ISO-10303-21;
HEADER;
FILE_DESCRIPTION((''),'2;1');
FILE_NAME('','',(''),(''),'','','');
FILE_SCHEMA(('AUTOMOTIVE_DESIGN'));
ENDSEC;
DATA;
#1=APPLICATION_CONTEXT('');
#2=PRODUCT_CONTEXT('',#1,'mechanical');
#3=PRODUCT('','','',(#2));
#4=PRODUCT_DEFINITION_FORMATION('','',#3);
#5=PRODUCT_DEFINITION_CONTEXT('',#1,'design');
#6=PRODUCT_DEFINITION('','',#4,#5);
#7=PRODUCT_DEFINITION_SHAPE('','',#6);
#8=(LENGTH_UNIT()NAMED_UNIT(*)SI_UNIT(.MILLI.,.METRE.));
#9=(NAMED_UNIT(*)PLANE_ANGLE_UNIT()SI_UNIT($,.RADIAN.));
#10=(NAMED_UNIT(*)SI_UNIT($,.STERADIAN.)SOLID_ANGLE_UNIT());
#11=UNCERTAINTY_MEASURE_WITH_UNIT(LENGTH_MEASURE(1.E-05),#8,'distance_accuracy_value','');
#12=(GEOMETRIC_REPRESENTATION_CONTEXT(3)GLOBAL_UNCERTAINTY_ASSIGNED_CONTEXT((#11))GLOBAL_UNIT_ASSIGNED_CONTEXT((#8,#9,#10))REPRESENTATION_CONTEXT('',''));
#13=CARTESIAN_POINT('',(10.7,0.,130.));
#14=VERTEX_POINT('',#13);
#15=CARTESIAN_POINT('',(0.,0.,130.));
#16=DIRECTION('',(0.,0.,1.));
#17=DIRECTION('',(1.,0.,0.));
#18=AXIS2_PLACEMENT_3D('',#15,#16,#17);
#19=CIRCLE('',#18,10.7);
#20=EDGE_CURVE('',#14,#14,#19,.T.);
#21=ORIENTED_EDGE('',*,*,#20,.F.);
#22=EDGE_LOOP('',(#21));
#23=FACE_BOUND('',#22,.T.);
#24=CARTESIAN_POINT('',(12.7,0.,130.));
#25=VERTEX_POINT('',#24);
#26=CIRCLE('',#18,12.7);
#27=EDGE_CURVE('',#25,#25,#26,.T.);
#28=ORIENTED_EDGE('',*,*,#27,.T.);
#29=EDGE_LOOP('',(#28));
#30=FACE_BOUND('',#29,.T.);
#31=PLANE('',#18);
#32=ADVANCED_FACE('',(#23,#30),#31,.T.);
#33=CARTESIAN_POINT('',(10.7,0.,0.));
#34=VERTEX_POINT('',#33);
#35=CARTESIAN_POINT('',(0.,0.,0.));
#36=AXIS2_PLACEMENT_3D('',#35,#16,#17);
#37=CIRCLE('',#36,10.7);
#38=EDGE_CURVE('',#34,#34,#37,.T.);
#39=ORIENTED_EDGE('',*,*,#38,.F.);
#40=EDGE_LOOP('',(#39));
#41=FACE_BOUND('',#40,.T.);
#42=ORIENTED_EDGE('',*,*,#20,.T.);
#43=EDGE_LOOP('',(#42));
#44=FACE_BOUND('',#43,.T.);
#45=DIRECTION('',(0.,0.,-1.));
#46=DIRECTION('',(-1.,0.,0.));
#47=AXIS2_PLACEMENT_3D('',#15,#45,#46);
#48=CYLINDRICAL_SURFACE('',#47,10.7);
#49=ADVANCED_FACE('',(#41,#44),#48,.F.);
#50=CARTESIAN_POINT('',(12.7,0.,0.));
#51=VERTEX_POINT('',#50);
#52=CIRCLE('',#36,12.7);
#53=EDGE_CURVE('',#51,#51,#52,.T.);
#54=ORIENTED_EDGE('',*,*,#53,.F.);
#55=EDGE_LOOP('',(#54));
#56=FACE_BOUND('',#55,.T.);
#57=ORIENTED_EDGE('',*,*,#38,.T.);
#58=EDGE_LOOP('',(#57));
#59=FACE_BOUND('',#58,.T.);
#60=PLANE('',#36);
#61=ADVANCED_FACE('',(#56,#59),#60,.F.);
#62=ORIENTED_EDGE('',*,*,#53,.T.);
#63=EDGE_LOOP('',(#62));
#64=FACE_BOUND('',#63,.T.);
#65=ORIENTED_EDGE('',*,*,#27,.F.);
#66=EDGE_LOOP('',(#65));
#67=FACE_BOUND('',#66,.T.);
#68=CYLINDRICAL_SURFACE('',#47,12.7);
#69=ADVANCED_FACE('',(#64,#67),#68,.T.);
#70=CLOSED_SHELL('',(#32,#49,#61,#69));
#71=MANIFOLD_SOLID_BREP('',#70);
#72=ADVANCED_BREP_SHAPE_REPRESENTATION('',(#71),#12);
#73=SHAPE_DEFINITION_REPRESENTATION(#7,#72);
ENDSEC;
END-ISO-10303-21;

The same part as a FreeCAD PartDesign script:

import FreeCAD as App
import Part
import Sketcher
from FreeCAD import Vector
Q = App.Units.Quantity

doc = App.newDocument("Part")
body = doc.addObject("PartDesign::Body", "Body")

# Sketch on XY plane
sketch1 = body.newObject("Sketcher::SketchObject", "Sketch")
sketch1.AttachmentSupport = (doc.getObject("XY_Plane"), [""])
sketch1.MapMode = "FlatFace"
sketch1.addGeometry(Part.Circle(Vector(0, 0, 0), Vector(0, 0, 1), 12.7), False)
sketch1.addGeometry(Part.Circle(Vector(0, 0, 0), Vector(0, 0, 1), 10.7), False)
sketch1.addConstraint(Sketcher.Constraint("Coincident", 0, 3, -1, 1))
sketch1.addConstraint(Sketcher.Constraint("Coincident", 1, 3, -1, 1))
sketch1.addConstraint(Sketcher.Constraint("Diameter", 0, Q("25.4 mm")))
sketch1.addConstraint(Sketcher.Constraint("Diameter", 1, Q("21.4 mm")))
pad1 = body.newObject("PartDesign::Pad", "Pad")
pad1.Profile = sketch1
pad1.Length = 130

doc.recompute()
